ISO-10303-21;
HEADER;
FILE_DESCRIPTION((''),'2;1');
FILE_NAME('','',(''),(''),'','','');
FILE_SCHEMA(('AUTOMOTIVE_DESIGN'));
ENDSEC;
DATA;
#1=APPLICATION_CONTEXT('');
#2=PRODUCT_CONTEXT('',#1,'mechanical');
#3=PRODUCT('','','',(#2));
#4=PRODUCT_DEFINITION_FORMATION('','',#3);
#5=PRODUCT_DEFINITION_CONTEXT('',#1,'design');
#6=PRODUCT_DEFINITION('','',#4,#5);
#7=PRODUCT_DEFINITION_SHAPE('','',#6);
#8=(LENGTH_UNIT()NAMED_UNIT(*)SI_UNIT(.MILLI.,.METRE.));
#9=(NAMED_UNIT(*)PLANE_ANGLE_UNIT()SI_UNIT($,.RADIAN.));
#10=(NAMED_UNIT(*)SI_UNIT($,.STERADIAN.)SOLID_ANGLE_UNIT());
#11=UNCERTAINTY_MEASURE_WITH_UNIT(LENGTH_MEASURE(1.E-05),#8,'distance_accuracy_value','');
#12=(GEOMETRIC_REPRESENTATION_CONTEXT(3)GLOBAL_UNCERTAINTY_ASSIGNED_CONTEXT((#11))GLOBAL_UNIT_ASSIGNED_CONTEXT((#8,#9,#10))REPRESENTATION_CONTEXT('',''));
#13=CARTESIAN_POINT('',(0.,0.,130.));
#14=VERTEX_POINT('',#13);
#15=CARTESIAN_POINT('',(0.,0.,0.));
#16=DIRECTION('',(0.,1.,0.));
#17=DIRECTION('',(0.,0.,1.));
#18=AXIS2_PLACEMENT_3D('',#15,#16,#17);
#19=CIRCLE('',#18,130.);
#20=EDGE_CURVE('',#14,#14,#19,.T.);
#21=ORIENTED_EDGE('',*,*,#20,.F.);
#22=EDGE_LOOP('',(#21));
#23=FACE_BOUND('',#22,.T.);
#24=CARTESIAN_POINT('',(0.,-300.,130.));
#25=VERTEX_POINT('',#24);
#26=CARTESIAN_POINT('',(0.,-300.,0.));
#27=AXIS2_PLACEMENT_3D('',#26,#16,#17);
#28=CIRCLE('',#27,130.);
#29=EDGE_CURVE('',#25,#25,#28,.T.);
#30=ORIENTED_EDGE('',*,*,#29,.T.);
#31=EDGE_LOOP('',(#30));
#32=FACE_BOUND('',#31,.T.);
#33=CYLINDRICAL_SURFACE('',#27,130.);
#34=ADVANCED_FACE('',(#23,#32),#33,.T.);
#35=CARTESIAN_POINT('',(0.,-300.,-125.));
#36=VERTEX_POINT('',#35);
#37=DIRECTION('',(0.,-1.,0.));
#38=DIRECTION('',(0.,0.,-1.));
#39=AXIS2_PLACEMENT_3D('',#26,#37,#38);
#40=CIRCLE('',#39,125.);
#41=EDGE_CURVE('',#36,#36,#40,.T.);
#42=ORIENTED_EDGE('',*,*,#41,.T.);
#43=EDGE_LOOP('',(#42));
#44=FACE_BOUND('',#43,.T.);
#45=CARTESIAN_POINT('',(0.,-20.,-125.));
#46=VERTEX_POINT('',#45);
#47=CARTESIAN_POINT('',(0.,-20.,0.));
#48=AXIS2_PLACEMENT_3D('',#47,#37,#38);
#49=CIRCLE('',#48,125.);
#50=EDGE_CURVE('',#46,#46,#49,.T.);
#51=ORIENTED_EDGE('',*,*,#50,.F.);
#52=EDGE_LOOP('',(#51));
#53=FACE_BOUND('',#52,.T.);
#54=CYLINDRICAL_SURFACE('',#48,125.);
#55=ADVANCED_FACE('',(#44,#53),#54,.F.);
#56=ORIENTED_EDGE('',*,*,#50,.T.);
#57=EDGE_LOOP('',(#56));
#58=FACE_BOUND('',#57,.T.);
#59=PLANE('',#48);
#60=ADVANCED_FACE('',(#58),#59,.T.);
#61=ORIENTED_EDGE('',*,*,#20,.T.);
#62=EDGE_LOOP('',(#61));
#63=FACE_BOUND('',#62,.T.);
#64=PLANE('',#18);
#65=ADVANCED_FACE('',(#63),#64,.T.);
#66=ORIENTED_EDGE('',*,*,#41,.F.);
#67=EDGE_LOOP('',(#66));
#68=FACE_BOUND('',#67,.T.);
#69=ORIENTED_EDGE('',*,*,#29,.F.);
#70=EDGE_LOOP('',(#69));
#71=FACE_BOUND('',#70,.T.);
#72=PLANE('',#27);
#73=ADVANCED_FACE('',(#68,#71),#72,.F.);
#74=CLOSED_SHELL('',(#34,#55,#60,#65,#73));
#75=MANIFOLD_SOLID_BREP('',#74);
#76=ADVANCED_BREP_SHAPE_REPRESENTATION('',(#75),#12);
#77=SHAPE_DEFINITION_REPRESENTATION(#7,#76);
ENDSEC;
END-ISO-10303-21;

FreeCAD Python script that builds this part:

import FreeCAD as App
import Part
import Sketcher
Q = App.Units.Quantity

doc = App.newDocument("Part")
body = doc.addObject("PartDesign::Body", "Body")

# Sketch on XZ plane
sketch1 = body.newObject("Sketcher::SketchObject", "Sketch")
sketch1.AttachmentSupport = (doc.getObject("XZ_Plane"), [""])
sketch1.MapMode = "FlatFace"
sketch1.addGeometry(Part.Circle(App.Vector(0, 0, 0), App.Vector(0, 0, 1), 130), False)
sketch1.addConstraint(Sketcher.Constraint("Coincident", 0, 3, -1, 1))
sketch1.addConstraint(Sketcher.Constraint("Diameter", 0, Q("260 mm")))
pad1 = body.newObject("PartDesign::Pad", "Pad")
pad1.Profile = sketch1
pad1.Length = 300

# Sketch on XZ plane
sketch2 = body.newObject("Sketcher::SketchObject", "Sketch001")
sketch2.AttachmentSupport = (doc.getObject("XZ_Plane"), [""])
sketch2.MapMode = "FlatFace"
sketch2.AttachmentOffset = App.Placement(App.Vector(0, 0, 300), App.Rotation())
sketch2.addGeometry(Part.Circle(App.Vector(0, 0, 0), App.Vector(0, 0, 1), 125), False)
sketch2.addConstraint(Sketcher.Constraint("Coincident", 0, 3, -1, 1))
sketch2.addConstraint(Sketcher.Constraint("Diameter", 0, Q("250 mm")))
pocket1 = body.newObject("PartDesign::Pocket", "Pocket")
pocket1.Profile = sketch2
pocket1.Length = 280

doc.recompute()
